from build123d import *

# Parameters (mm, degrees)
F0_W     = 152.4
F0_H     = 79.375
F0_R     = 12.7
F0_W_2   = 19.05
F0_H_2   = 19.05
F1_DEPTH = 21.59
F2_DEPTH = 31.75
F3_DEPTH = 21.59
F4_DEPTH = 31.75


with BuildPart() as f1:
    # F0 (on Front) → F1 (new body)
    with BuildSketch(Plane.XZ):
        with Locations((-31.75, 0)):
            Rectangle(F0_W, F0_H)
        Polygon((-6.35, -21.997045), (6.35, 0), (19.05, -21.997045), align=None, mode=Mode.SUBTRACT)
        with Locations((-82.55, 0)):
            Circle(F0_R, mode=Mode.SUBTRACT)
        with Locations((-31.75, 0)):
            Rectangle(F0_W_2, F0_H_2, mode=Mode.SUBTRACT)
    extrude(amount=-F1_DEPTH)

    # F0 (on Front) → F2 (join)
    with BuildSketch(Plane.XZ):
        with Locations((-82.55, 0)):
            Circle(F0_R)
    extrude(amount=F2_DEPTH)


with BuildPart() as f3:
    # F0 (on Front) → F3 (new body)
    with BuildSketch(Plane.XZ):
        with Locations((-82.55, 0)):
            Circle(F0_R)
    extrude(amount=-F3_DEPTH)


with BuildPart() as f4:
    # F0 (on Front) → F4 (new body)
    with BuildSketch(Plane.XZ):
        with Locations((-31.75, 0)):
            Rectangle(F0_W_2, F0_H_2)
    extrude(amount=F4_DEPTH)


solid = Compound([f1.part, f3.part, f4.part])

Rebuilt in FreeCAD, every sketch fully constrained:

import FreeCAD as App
import Part
import Sketcher
Q = App.Units.Quantity

doc = App.newDocument("Part")
body = doc.addObject("PartDesign::Body", "Body")
body.AllowCompound = True

# Sketch on XZ plane
sketch1 = body.newObject("Sketcher::SketchObject", "Sketch")
sketch1.AttachmentSupport = (doc.getObject("XZ_Plane"), [""])
sketch1.MapMode = "FlatFace"
sketch1.addGeometry(Part.LineSegment(App.Vector(-108, 40, 0), App.Vector(-108, -40, 0)), False)
sketch1.addGeometry(Part.LineSegment(App.Vector(-108, -40, 0), App.Vector(44, -40, 0)), False)
sketch1.addGeometry(Part.LineSegment(App.Vector(44, -40, 0), App.Vector(44, 40, 0)), False)
sketch1.addGeometry(Part.LineSegment(App.Vector(44, 40, 0), App.Vector(-108, 40, 0)), False)
sketch1.addGeometry(Part.LineSegment(App.Vector(19, -22, 0), App.Vector(-6, -22, 0)), False)
sketch1.addGeometry(Part.LineSegment(App.Vector(-6, -22, 0), App.Vector(6, 0, 0)), False)
sketch1.addGeometry(Part.LineSegment(App.Vector(6, 0, 0), App.Vector(19, -22, 0)), False)
sketch1.addGeometry(Part.Circle(App.Vector(-83, 0, 0), App.Vector(0, 0, 1), 13), False)
sketch1.addGeometry(Part.LineSegment(App.Vector(-22, -10, 0), App.Vector(-41, -10, 0)), False)
sketch1.addGeometry(Part.LineSegment(App.Vector(-41, -10, 0), App.Vector(-41, 10, 0)), False)
sketch1.addGeometry(Part.LineSegment(App.Vector(-41, 10, 0), App.Vector(-22, 10, 0)), False)
sketch1.addGeometry(Part.LineSegment(App.Vector(-22, 10, 0), App.Vector(-22, -10, 0)), False)
sketch1.addConstraint(Sketcher.Constraint("Coincident", 0, 2, 1, 1))
sketch1.addConstraint(Sketcher.Constraint("Coincident", 1, 2, 2, 1))
sketch1.addConstraint(Sketcher.Constraint("Coincident", 2, 2, 3, 1))
sketch1.addConstraint(Sketcher.Constraint("Coincident", 3, 2, 0, 1))
sketch1.addConstraint(Sketcher.Constraint("Coincident", 4, 2, 5, 1))
sketch1.addConstraint(Sketcher.Constraint("Coincident", 5, 2, 6, 1))
sketch1.addConstraint(Sketcher.Constraint("Coincident", 6, 2, 4, 1))
sketch1.addConstraint(Sketcher.Constraint("Coincident", 8, 2, 9, 1))
sketch1.addConstraint(Sketcher.Constraint("Coincident", 9, 2, 10, 1))
sketch1.addConstraint(Sketcher.Constraint("Coincident", 10, 2, 11, 1))
sketch1.addConstraint(Sketcher.Constraint("Coincident", 11, 2, 8, 1))
sketch1.addConstraint(Sketcher.Constraint("Vertical", 0))
sketch1.addConstraint(Sketcher.Constraint("Horizontal", 1))
sketch1.addConstraint(Sketcher.Constraint("Vertical", 2))
sketch1.addConstraint(Sketcher.Constraint("Horizontal", 3))
sketch1.addConstraint(Sketcher.Constraint("Horizontal", 4))
sketch1.addConstraint(Sketcher.Constraint("Horizontal", 8))
sketch1.addConstraint(Sketcher.Constraint("Vertical", 9))
sketch1.addConstraint(Sketcher.Constraint("Horizontal", 10))
sketch1.addConstraint(Sketcher.Constraint("Vertical", 11))
sketch1.addConstraint(Sketcher.Constraint("PointOnObject", 7, 3, -1))
sketch1.addConstraint(Sketcher.Constraint("PointOnObject", 5, 2, -1))
sketch1.addConstraint(Sketcher.Constraint("Equal", 10, 9))
sketch1.addConstraint(Sketcher.Constraint("Equal", 5, 6))
sketch1.addConstraint(Sketcher.Constraint("Diameter", 7, Q("1 in")))
sketch1.addConstraint(Sketcher.Constraint("DistanceX", 1, 1, 1, 2, Q("6 in")))
sketch1.addConstraint(Sketcher.Constraint("DistanceX", 4, 2, 4, 1, Q("1 in")))
sketch1.addConstraint(Sketcher.Constraint("Distance", 5, Q("1 in")))
sketch1.addConstraint(Sketcher.Constraint("DistanceX", 0, 2, 7, 3, Q("1 in")))
sketch1.addConstraint(Sketcher.Constraint("DistanceX", 4, 2, 1, 2, Q("2 in")))
sketch1.addConstraint(Sketcher.Constraint("DistanceX", 8, 2, 8, 1, Q("0.75 in")))
sketch1.addConstraint(Sketcher.Constraint("DistanceY", 0, 2, 0, 1, Q("3.125 in")))
sketch1.addConstraint(Sketcher.Constraint("DistanceX", 7, 3, -1, 1, Q("3.25 in")))
sketch1.addConstraint(Sketcher.Constraint("DistanceY", 0, 2, -1, 1, Q("1.5625 in")))
sketch1.addConstraint(Sketcher.Constraint("DistanceX", 8, 2, -1, 1, Q("1.625 in")))
sketch1.addConstraint(Sketcher.Constraint("DistanceY", 8, 2, -1, 1, Q("0.375 in")))
pad1 = body.newObject("PartDesign::Pad", "Pad")
pad1.Profile = sketch1
pad1.Length = Q("0.85 in")
pad1.Reversed = True

# Sketch on XZ plane
sketch2 = body.newObject("Sketcher::SketchObject", "Sketch001")
sketch2.AttachmentSupport = (doc.getObject("XZ_Plane"), [""])
sketch2.MapMode = "FlatFace"
sketch2.addGeometry(Part.Circle(App.Vector(-83, 0, 0), App.Vector(0, 0, 1), 13), False)
sketch2.addConstraint(Sketcher.Constraint("PointOnObject", 0, 3, -1))
sketch2.addConstraint(Sketcher.Constraint("Diameter", 0, Q("1 in")))
sketch2.addConstraint(Sketcher.Constraint("DistanceX", 0, 3, -1, 1, Q("3.25 in")))
pad2 = body.newObject("PartDesign::Pad", "Pad001")
pad2.Profile = sketch2
pad2.Length = Q("1.25 in")
body2 = doc.addObject("PartDesign::Body", "Body001")

# Sketch on XZ plane
sketch3 = body2.newObject("Sketcher::SketchObject", "Sketch002")
sketch3.AttachmentSupport = (doc.getObject("XZ_Plane001"), [""])
sketch3.MapMode = "FlatFace"
sketch3.addGeometry(Part.Circle(App.Vector(-83, 0, 0), App.Vector(0, 0, 1), 13), False)
sketch3.addConstraint(Sketcher.Constraint("PointOnObject", 0, 3, -1))
sketch3.addConstraint(Sketcher.Constraint("Diameter", 0, Q("1 in")))
sketch3.addConstraint(Sketcher.Constraint("DistanceX", 0, 3, -1, 1, Q("3.25 in")))
pad3 = body2.newObject("PartDesign::Pad", "Pad002")
pad3.Profile = sketch3
pad3.Length = Q("0.85 in")
pad3.Reversed = True
body3 = doc.addObject("PartDesign::Body", "Body002")

# Sketch on XZ plane
sketch4 = body3.newObject("Sketcher::SketchObject", "Sketch003")
sketch4.AttachmentSupport = (doc.getObject("XZ_Plane002"), [""])
sketch4.MapMode = "FlatFace"
sketch4.addGeometry(Part.LineSegment(App.Vector(-41, 10, 0), App.Vector(-41, -10, 0)), False)
sketch4.addGeometry(Part.LineSegment(App.Vector(-41, -10, 0), App.Vector(-22, -10, 0)), False)
sketch4.addGeometry(Part.LineSegment(App.Vector(-22, -10, 0), App.Vector(-22, 10, 0)), False)
sketch4.addGeometry(Part.LineSegment(App.Vector(-22, 10, 0), App.Vector(-41, 10, 0)), False)
sketch4.addConstraint(Sketcher.Constraint("Coincident", 0, 2, 1, 1))
sketch4.addConstraint(Sketcher.Constraint("Coincident", 1, 2, 2, 1))
sketch4.addConstraint(Sketcher.Constraint("Coincident", 2, 2, 3, 1))
sketch4.addConstraint(Sketcher.Constraint("Coincident", 3, 2, 0, 1))
sketch4.addConstraint(Sketcher.Constraint("Vertical", 0))
sketch4.addConstraint(Sketcher.Constraint("Horizontal", 1))
sketch4.addConstraint(Sketcher.Constraint("Vertical", 2))
sketch4.addConstraint(Sketcher.Constraint("Horizontal", 3))
sketch4.addConstraint(Sketcher.Constraint("Equal", 3, 0))
sketch4.addConstraint(Sketcher.Constraint("DistanceX", 1, 1, 1, 2, Q("0.75 in")))
sketch4.addConstraint(Sketcher.Constraint("DistanceX", 0, 2, -1, 1, Q("1.625 in")))
sketch4.addConstraint(Sketcher.Constraint("DistanceY", 0, 2, -1, 1, Q("0.375 in")))
pad4 = body3.newObject("PartDesign::Pad", "Pad003")
pad4.Profile = sketch4
pad4.Length = Q("1.25 in")

doc.recompute()
